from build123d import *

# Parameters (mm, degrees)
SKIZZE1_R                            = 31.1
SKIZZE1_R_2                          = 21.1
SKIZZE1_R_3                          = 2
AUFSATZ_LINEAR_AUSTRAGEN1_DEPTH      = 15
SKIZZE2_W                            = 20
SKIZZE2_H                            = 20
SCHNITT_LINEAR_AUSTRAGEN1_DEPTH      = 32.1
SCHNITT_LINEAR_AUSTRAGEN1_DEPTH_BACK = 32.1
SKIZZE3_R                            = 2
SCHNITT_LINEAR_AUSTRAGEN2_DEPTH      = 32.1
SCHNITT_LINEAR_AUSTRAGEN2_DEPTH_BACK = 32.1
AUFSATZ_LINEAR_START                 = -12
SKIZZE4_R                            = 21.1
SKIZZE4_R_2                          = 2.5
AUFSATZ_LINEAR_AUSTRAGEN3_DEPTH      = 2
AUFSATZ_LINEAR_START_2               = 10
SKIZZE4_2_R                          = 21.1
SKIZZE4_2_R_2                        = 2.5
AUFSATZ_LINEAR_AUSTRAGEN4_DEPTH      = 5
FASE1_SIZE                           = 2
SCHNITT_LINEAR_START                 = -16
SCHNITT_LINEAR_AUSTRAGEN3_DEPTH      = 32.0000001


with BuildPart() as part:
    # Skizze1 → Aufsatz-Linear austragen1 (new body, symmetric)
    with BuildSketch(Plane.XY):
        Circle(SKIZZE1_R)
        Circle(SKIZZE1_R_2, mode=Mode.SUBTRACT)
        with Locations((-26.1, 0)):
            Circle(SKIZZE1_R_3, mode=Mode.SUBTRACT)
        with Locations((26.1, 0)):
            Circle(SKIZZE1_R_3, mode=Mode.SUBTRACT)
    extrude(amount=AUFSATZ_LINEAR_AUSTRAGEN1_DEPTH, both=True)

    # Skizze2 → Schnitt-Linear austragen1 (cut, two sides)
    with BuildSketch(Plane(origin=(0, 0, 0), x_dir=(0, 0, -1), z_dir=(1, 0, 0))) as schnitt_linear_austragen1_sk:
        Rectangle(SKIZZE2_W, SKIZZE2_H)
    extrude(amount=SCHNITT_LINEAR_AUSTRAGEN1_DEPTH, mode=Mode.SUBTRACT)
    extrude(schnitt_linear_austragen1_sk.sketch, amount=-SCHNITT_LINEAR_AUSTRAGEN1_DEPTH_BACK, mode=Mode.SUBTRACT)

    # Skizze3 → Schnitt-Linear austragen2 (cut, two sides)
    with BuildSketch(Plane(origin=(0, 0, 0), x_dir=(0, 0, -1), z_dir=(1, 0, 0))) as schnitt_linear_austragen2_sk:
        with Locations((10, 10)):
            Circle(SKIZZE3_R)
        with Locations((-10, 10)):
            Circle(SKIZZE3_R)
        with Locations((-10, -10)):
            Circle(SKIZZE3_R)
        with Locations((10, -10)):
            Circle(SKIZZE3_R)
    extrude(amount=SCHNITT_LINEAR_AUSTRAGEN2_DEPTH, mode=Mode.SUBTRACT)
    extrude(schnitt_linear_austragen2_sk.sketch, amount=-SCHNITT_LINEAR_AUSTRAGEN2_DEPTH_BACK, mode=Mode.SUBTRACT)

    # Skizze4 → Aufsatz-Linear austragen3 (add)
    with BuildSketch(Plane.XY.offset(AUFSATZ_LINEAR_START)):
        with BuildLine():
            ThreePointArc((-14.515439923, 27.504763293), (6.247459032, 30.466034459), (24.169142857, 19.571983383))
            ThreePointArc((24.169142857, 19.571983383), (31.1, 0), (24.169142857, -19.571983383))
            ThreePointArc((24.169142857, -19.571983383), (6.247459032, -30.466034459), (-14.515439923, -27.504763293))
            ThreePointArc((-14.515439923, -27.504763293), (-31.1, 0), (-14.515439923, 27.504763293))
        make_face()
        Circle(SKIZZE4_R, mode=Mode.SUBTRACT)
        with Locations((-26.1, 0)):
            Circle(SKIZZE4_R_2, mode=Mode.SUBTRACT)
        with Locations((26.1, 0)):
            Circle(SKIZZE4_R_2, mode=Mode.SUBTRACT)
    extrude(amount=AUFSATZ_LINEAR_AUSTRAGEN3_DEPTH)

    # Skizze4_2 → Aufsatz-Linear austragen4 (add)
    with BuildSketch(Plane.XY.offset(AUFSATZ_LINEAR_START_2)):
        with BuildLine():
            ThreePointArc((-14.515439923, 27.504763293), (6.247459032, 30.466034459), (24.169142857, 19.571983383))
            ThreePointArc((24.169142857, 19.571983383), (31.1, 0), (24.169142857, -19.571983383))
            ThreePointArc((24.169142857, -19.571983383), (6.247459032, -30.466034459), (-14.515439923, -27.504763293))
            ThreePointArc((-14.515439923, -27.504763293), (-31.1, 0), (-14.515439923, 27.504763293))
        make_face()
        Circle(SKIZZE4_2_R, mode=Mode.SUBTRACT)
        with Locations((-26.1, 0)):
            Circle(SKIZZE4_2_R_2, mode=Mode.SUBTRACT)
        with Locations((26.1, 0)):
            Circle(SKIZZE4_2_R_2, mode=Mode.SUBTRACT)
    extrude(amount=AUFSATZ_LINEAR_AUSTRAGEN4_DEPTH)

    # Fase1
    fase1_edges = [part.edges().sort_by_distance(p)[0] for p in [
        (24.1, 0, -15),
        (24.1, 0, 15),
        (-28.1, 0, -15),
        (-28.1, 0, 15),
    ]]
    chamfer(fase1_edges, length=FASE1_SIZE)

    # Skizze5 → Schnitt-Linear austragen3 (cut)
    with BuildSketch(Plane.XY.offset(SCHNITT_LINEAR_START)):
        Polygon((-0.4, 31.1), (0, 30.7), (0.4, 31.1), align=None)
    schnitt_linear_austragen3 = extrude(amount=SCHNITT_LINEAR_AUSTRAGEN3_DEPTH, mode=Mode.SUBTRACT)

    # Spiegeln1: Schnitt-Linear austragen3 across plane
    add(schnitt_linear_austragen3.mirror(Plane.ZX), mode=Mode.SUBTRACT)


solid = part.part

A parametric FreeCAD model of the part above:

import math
import FreeCAD as App
import Part
import Sketcher
Q = App.Units.Quantity


def edges_at(feature, points):
    """Names of the edges that pass closest to the given points."""
    edges = feature.Shape.Edges
    near = lambda p: min(range(len(edges)), key=lambda i: edges[i].distToShape(Part.Vertex(*p))[0])
    return sorted({f"Edge{near(p) + 1}" for p in points})

doc = App.newDocument("Part")
params = doc.addObject("Spreadsheet::Sheet", "Params")
for row, (alias, value) in enumerate([
    ("sketch1_diameter", "4 mm"),
    ("sketch1_diameter2", "62.2 mm"),
    ("sketch1_diameter3", "42.2 mm"),
    ("pad1_length", "30 mm"),
    ("sketch2_width", "20 mm"),
    ("sketch3_diameter", "4 mm"),
    ("sketch4_diameter", "5 mm"),
    ("sketch4_diameter2", "42.2 mm"),
    ("sketch4_radius", "31.1 mm"),
    ("pad2_length", "2 mm"),
    ("sketch5_diameter", "5 mm"),
    ("sketch5_diameter2", "42.2 mm"),
    ("sketch5_radius", "31.1 mm"),
    ("pad3_length", "5 mm"),
    ("chamfer_size", "2 mm"),
    ("sketch6_width", "0.8 mm"),
    ("pocket3_length", "32 mm"),
], start=1):
    params.set(f"A{row}", alias)
    params.set(f"B{row}", "=" + value)
    params.setAlias(f"B{row}", alias)

body = doc.addObject("PartDesign::Body", "Body")

# Sketch on XY plane
sketch1 = body.newObject("Sketcher::SketchObject", "Sketch")
sketch1.AttachmentSupport = (doc.getObject("XY_Plane"), [""])
sketch1.MapMode = "FlatFace"
sketch1.addGeometry([
    Part.Circle(App.Vector(0, 0, 0), App.Vector(0, 0, 1), 31.1),
    Part.Circle(App.Vector(-26.1, 0, 0), App.Vector(0, 0, 1), 2),
    Part.Circle(App.Vector(0, 0, 0), App.Vector(0, 0, 1), 21.1),
    Part.Circle(App.Vector(26.1, 0, 0), App.Vector(0, 0, 1), 2),
], False)
sketch1.addConstraint([
    Sketcher.Constraint("Coincident", 0, 3, -1, 1),
    Sketcher.Constraint("Coincident", 2, 3, -1, 1),
    Sketcher.Constraint("Equal", 1, 3),
    Sketcher.Constraint("Symmetric", 1, 3, 3, 3, -1, 1),
    Sketcher.Constraint("PointOnObject", 1, 3, -1),
    Sketcher.Constraint("Diameter", 1, Q("4 mm")),
    Sketcher.Constraint("Diameter", 0, Q("62.2 mm")),
    Sketcher.Constraint("Diameter", 2, Q("42.2 mm")),
    Sketcher.Constraint("DistanceX", 1, 3, -1, 1, Q("26.1 mm")),
])
sketch1.setExpression("Constraints[5]", "Params.sketch1_diameter")
sketch1.setExpression("Constraints[6]", "Params.sketch1_diameter2")
sketch1.setExpression("Constraints[7]", "Params.sketch1_diameter3")
pad1 = body.newObject("PartDesign::Pad", "Pad")
pad1.Profile = sketch1
pad1.setExpression("Length", "Params.pad1_length")
pad1.Midplane = True

# Sketch on YZ plane
sketch2 = body.newObject("Sketcher::SketchObject", "Sketch001")
sketch2.AttachmentSupport = (doc.getObject("YZ_Plane"), [""])
sketch2.MapMode = "FlatFace"
sketch2.addGeometry([
    Part.LineSegment(App.Vector(10, 10, 0), App.Vector(-10, 10, 0)),
    Part.LineSegment(App.Vector(-10, 10, 0), App.Vector(-10, -10, 0)),
    Part.LineSegment(App.Vector(-10, -10, 0), App.Vector(10, -10, 0)),
    Part.LineSegment(App.Vector(10, -10, 0), App.Vector(10, 10, 0)),
], False)
sketch2.addConstraint([
    Sketcher.Constraint("Coincident", 0, 2, 1, 1),
    Sketcher.Constraint("Coincident", 1, 2, 2, 1),
    Sketcher.Constraint("Coincident", 2, 2, 3, 1),
    Sketcher.Constraint("Coincident", 3, 2, 0, 1),
    Sketcher.Constraint("Horizontal", 0),
    Sketcher.Constraint("Vertical", 1),
    Sketcher.Constraint("Horizontal", 2),
    Sketcher.Constraint("Vertical", 3),
    Sketcher.Constraint("Symmetric", 0, 2, 2, 2, -1, 1),
    Sketcher.Constraint("Equal", 2, 1),
    Sketcher.Constraint("DistanceX", 0, 2, 0, 1, Q("20 mm")),
])
sketch2.setExpression("Constraints[10]", "Params.sketch2_width")
pocket1 = body.newObject("PartDesign::Pocket", "Pocket")
pocket1.Profile = sketch2
pocket1.Type = "ThroughAll"
pocket1.Midplane = True

# Sketch on YZ plane
sketch3 = body.newObject("Sketcher::SketchObject", "Sketch002")
sketch3.AttachmentSupport = (doc.getObject("YZ_Plane"), [""])
sketch3.MapMode = "FlatFace"
sketch3.addGeometry([
    Part.Circle(App.Vector(10, -10, 0), App.Vector(0, 0, 1), 2),
    Part.Circle(App.Vector(10, 10, 0), App.Vector(0, 0, 1), 2),
    Part.Circle(App.Vector(-10, 10, 0), App.Vector(0, 0, 1), 2),
    Part.Circle(App.Vector(-10, -10, 0), App.Vector(0, 0, 1), 2),
], False)
sketch3.addConstraint([
    Sketcher.Constraint("Equal", 0, 1),
    Sketcher.Constraint("Equal", 1, 2),
    Sketcher.Constraint("Equal", 2, 3),
    Sketcher.Constraint("Symmetric", 0, 3, 2, 3, -1, 1),
    Sketcher.Constraint("Symmetric", 1, 3, 3, 3, -1, 1),
    Sketcher.Constraint("Symmetric", 1, 3, 2, 3, -2),
    Sketcher.Constraint("Diameter", 0, Q("4 mm")),
    Sketcher.Constraint("DistanceX", -1, 1, 0, 3, Q("10 mm")),
    Sketcher.Constraint("DistanceY", 0, 3, -1, 1, Q("10 mm")),
])
sketch3.setExpression("Constraints[6]", "Params.sketch3_diameter")
pocket2 = body.newObject("PartDesign::Pocket", "Pocket001")
pocket2.Profile = sketch3
pocket2.Type = "ThroughAll"
pocket2.Midplane = True

# Sketch on XY plane
sketch4 = body.newObject("Sketcher::SketchObject", "Sketch003")
sketch4.AttachmentSupport = (doc.getObject("XY_Plane"), [""])
sketch4.MapMode = "FlatFace"
sketch4.AttachmentOffset = App.Placement(App.Vector(0, 0, -12), App.Rotation())
sketch4.addGeometry([
    Part.ArcOfCircle(Part.Circle(App.Vector(0, 0, 0), App.Vector(0, 0, 1), 31.1), math.radians(39.000283), math.radians(117.822527)),  # 0
    Part.ArcOfCircle(Part.Circle(App.Vector(0, 0, 0), App.Vector(0, 0, 1), 31.1), math.radians(117.822527), math.radians(242.177473)),  # 1
    Part.ArcOfCircle(Part.Circle(App.Vector(0, 0, 0), App.Vector(0, 0, 1), 31.1), math.radians(-117.822527), math.radians(-39.000283)),  # 2
    Part.ArcOfCircle(Part.Circle(App.Vector(0, 0, 0), App.Vector(0, 0, 1), 31.1), math.radians(-39.000283), math.radians(39.000283)),  # 3
    Part.Circle(App.Vector(26.1, 0, 0), App.Vector(0, 0, 1), 2.5),  # 4
    Part.Circle(App.Vector(0, 0, 0), App.Vector(0, 0, 1), 21.1),  # 5
    Part.Circle(App.Vector(-26.1, 0, 0), App.Vector(0, 0, 1), 2.5),  # 6
], False)
sketch4.addConstraint([
    Sketcher.Constraint("Tangent", 0, 2, 1, 1),
    Sketcher.Constraint("Tangent", 1, 2, 2, 1),
    Sketcher.Constraint("Tangent", 2, 2, 3, 1),
    Sketcher.Constraint("Tangent", 3, 2, 0, 1),
    Sketcher.Constraint("Coincident", 0, 3, -1, 1),
    Sketcher.Constraint("Coincident", 5, 3, -1, 1),
    Sketcher.Constraint("Equal", 0, 1),
    Sketcher.Constraint("Equal", 4, 6),
    Sketcher.Constraint("Symmetric", 4, 3, 6, 3, -1, 1),
    Sketcher.Constraint("PointOnObject", 4, 3, -1),
    Sketcher.Constraint("Vertical", 0, 2, 1, 2),
    Sketcher.Constraint("Vertical", 2, 2, 3, 2),
    Sketcher.Constraint("Diameter", 4, Q("5 mm")),
    Sketcher.Constraint("Diameter", 5, Q("42.2 mm")),
    Sketcher.Constraint("Radius", 0, Q("31.1 mm")),
    Sketcher.Constraint("DistanceX", -1, 1, 4, 3, Q("26.1 mm")),
    Sketcher.Constraint("DistanceX", 0, 2, -1, 1, Q("14.51544 mm")),
    Sketcher.Constraint("DistanceX", -1, 1, 2, 2, Q("24.169143 mm")),
])
sketch4.setExpression("Constraints[12]", "Params.sketch4_diameter")
sketch4.setExpression("Constraints[13]", "Params.sketch4_diameter2")
sketch4.setExpression("Constraints[14]", "Params.sketch4_radius")
pad2 = body.newObject("PartDesign::Pad", "Pad001")
pad2.Profile = sketch4
pad2.setExpression("Length", "Params.pad2_length")

# Sketch on XY plane
sketch5 = body.newObject("Sketcher::SketchObject", "Sketch004")
sketch5.AttachmentSupport = (doc.getObject("XY_Plane"), [""])
sketch5.MapMode = "FlatFace"
sketch5.AttachmentOffset = App.Placement(App.Vector(0, 0, 10), App.Rotation())
sketch5.addGeometry([
    Part.ArcOfCircle(Part.Circle(App.Vector(0, 0, 0), App.Vector(0, 0, 1), 31.1), math.radians(39.000283), math.radians(117.822527)),  # 0
    Part.ArcOfCircle(Part.Circle(App.Vector(0, 0, 0), App.Vector(0, 0, 1), 31.1), math.radians(117.822527), math.radians(242.177473)),  # 1
    Part.ArcOfCircle(Part.Circle(App.Vector(0, 0, 0), App.Vector(0, 0, 1), 31.1), math.radians(-117.822527), math.radians(-39.000283)),  # 2
    Part.ArcOfCircle(Part.Circle(App.Vector(0, 0, 0), App.Vector(0, 0, 1), 31.1), math.radians(-39.000283), math.radians(39.000283)),  # 3
    Part.Circle(App.Vector(26.1, 0, 0), App.Vector(0, 0, 1), 2.5),  # 4
    Part.Circle(App.Vector(0, 0, 0), App.Vector(0, 0, 1), 21.1),  # 5
    Part.Circle(App.Vector(-26.1, 0, 0), App.Vector(0, 0, 1), 2.5),  # 6
], False)
sketch5.addConstraint([
    Sketcher.Constraint("Tangent", 0, 2, 1, 1),
    Sketcher.Constraint("Tangent", 1, 2, 2, 1),
    Sketcher.Constraint("Tangent", 2, 2, 3, 1),
    Sketcher.Constraint("Tangent", 3, 2, 0, 1),
    Sketcher.Constraint("Coincident", 0, 3, -1, 1),
    Sketcher.Constraint("Coincident", 5, 3, -1, 1),
    Sketcher.Constraint("Equal", 0, 1),
    Sketcher.Constraint("Equal", 4, 6),
    Sketcher.Constraint("Symmetric", 4, 3, 6, 3, -1, 1),
    Sketcher.Constraint("PointOnObject", 4, 3, -1),
    Sketcher.Constraint("Vertical", 0, 2, 1, 2),
    Sketcher.Constraint("Vertical", 2, 2, 3, 2),
    Sketcher.Constraint("Diameter", 4, Q("5 mm")),
    Sketcher.Constraint("Diameter", 5, Q("42.2 mm")),
    Sketcher.Constraint("Radius", 0, Q("31.1 mm")),
    Sketcher.Constraint("DistanceX", -1, 1, 4, 3, Q("26.1 mm")),
    Sketcher.Constraint("DistanceX", 0, 2, -1, 1, Q("14.51544 mm")),
    Sketcher.Constraint("DistanceX", -1, 1, 2, 2, Q("24.169143 mm")),
])
sketch5.setExpression("Constraints[12]", "Params.sketch5_diameter")
sketch5.setExpression("Constraints[13]", "Params.sketch5_diameter2")
sketch5.setExpression("Constraints[14]", "Params.sketch5_radius")
pad3 = body.newObject("PartDesign::Pad", "Pad002")
pad3.Profile = sketch5
pad3.setExpression("Length", "Params.pad3_length")
doc.recompute()

chamfer = body.newObject("PartDesign::Chamfer", "Chamfer")
chamfer.Base = (pad3, edges_at(pad3, [
    (24.1, 0, -15),
    (24.1, 0, 15),
    (-28.1, 0, -15),
    (-28.1, 0, 15),
]))
chamfer.setExpression("Size", "Params.chamfer_size")

# Sketch on XY plane
sketch6 = body.newObject("Sketcher::SketchObject", "Sketch005")
sketch6.AttachmentSupport = (doc.getObject("XY_Plane"), [""])
sketch6.MapMode = "FlatFace"
sketch6.AttachmentOffset = App.Placement(App.Vector(0, 0, -16), App.Rotation())
sketch6.addGeometry([
    Part.LineSegment(App.Vector(-0.4, 31.1, 0), App.Vector(0, 30.7, 0)),
    Part.LineSegment(App.Vector(0, 30.7, 0), App.Vector(0.4, 31.1, 0)),
    Part.LineSegment(App.Vector(0.4, 31.1, 0), App.Vector(-0.4, 31.1, 0)),
], False)
sketch6.addConstraint([
    Sketcher.Constraint("Coincident", 0, 2, 1, 1),
    Sketcher.Constraint("Coincident", 1, 2, 2, 1),
    Sketcher.Constraint("Coincident", 2, 2, 0, 1),
    Sketcher.Constraint("Horizontal", 2),
    Sketcher.Constraint("PointOnObject", 0, 2, -2),
    Sketcher.Constraint("Perpendicular", 0, 1),
    Sketcher.Constraint("Equal", 0, 1),
    Sketcher.Constraint("DistanceX", 2, 2, 2, 1, Q("0.8 mm")),
    Sketcher.Constraint("DistanceY", -1, 1, 0, 2, Q("30.7 mm")),
])
sketch6.setExpression("Constraints[7]", "Params.sketch6_width")
pocket3 = body.newObject("PartDesign::Pocket", "Pocket002")
pocket3.Profile = sketch6
pocket3.setExpression("Length", "Params.pocket3_length")
pocket3.Reversed = True
doc.recompute()

mirrored = body.newObject("PartDesign::Mirrored", "Mirrored")
mirrored.Originals = [pocket3]
mirrored.MirrorPlane = (doc.getObject("XZ_Plane"), [""])
body.Tip = mirrored

doc.recompute()
